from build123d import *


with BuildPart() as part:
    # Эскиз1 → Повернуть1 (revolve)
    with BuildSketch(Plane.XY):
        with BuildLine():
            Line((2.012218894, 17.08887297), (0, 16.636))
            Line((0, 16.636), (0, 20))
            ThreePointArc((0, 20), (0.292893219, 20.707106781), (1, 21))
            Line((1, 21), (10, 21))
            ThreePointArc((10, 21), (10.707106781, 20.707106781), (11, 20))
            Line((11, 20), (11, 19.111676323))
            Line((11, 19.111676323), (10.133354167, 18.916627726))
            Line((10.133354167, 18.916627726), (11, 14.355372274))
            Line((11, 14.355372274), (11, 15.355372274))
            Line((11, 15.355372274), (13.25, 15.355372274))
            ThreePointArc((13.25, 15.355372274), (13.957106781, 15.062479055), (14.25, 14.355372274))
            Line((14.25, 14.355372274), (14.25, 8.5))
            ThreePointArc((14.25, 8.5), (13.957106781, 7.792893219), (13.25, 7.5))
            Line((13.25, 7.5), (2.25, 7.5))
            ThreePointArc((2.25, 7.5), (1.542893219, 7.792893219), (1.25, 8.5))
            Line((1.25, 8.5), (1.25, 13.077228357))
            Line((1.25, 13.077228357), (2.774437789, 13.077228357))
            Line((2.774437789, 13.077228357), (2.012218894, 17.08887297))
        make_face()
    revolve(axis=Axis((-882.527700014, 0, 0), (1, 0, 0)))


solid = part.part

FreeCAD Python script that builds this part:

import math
import FreeCAD as App
import Part
import Sketcher
from FreeCAD import Vector

doc = App.newDocument("Part")
body = doc.addObject("PartDesign::Body", "Body")

# Sketch on XY plane
sketch1 = doc.addObject("Sketcher::SketchObject", "Sketch")
body.addObject(sketch1)
sketch1.AttachmentSupport = (doc.XY_Plane, [""])
sketch1.MapMode = "FlatFace"
sketch1.addGeometry([
    Part.LineSegment(Vector(0, 16.6, 0), Vector(2, 17.1, 0)),  # 0
    Part.LineSegment(Vector(2, 17.1, 0), Vector(2.8, 13.1, 0)),  # 1
    Part.LineSegment(Vector(2.8, 13.1, 0), Vector(1.2, 13.1, 0)),  # 2
    Part.LineSegment(Vector(1.2, 13.1, 0), Vector(1.2, 8.5, 0)),  # 3
    Part.ArcOfCircle(Part.Circle(Vector(2.3, 8.5, 0), Vector(0, 0, 1), 1), math.radians(-180), math.radians(-90)),  # 4
    Part.LineSegment(Vector(2.2, 7.5, 0), Vector(13.2, 7.5, 0)),  # 5
    Part.ArcOfCircle(Part.Circle(Vector(13.2, 8.5, 0), Vector(0, 0, 1), 1), math.radians(-90), math.radians(0)),  # 6
    Part.LineSegment(Vector(14.2, 8.5, 0), Vector(14.2, 14.4, 0)),  # 7
    Part.ArcOfCircle(Part.Circle(Vector(13.2, 14.4, 0), Vector(0, 0, 1), 1), math.radians(0), math.radians(90)),  # 8
    Part.LineSegment(Vector(13.2, 15.4, 0), Vector(11, 15.4, 0)),  # 9
    Part.LineSegment(Vector(11, 15.4, 0), Vector(11, 14.4, 0)),  # 10
    Part.LineSegment(Vector(11, 14.4, 0), Vector(10.1, 18.9, 0)),  # 11
    Part.LineSegment(Vector(10.1, 18.9, 0), Vector(11, 19.1, 0)),  # 12
    Part.LineSegment(Vector(11, 19.1, 0), Vector(11, 20, 0)),  # 13
    Part.ArcOfCircle(Part.Circle(Vector(10, 20, 0), Vector(0, 0, 1), 1), math.radians(0), math.radians(90)),  # 14
    Part.LineSegment(Vector(10, 21, 0), Vector(1, 21, 0)),  # 15
    Part.ArcOfCircle(Part.Circle(Vector(1, 20, 0), Vector(0, 0, 1), 1), math.radians(90), math.radians(180)),  # 16
    Part.LineSegment(Vector(0, 20, 0), Vector(0, 16.6, 0)),  # 17
], False)
sketch1.addConstraint([
    Sketcher.Constraint("Coincident", 0, 2, 1, 1),
    Sketcher.Constraint("Coincident", 1, 2, 2, 1),
    Sketcher.Constraint("Coincident", 2, 2, 3, 1),
    Sketcher.Constraint("Tangent", 3, 2, 4, 1),
    Sketcher.Constraint("Tangent", 4, 2, 5, 1),
    Sketcher.Constraint("Tangent", 5, 2, 6, 1),
    Sketcher.Constraint("Tangent", 6, 2, 7, 1),
    Sketcher.Constraint("Tangent", 7, 2, 8, 1),
    Sketcher.Constraint("Tangent", 8, 2, 9, 1),
    Sketcher.Constraint("Coincident", 9, 2, 10, 1),
    Sketcher.Constraint("Coincident", 10, 2, 11, 1),
    Sketcher.Constraint("Coincident", 11, 2, 12, 1),
    Sketcher.Constraint("Coincident", 12, 2, 13, 1),
    Sketcher.Constraint("Tangent", 13, 2, 14, 1),
    Sketcher.Constraint("Tangent", 14, 2, 15, 1),
    Sketcher.Constraint("Tangent", 15, 2, 16, 1),
    Sketcher.Constraint("Tangent", 16, 2, 17, 1),
    Sketcher.Constraint("Coincident", 17, 2, 0, 1),
    Sketcher.Constraint("Horizontal", 2),
    Sketcher.Constraint("Vertical", 3),
    Sketcher.Constraint("Horizontal", 5),
    Sketcher.Constraint("Vertical", 7),
    Sketcher.Constraint("Horizontal", 9),
    Sketcher.Constraint("Vertical", 10),
    Sketcher.Constraint("Vertical", 13),
    Sketcher.Constraint("Horizontal", 15),
    Sketcher.Constraint("Vertical", 17),
    Sketcher.Constraint("Equal", 4, 6),
    Sketcher.Constraint("Equal", 6, 8),
    Sketcher.Constraint("Equal", 8, 14),
    Sketcher.Constraint("Equal", 14, 16),
    Sketcher.Constraint("PointOnObject", 16, 2, -2),
    Sketcher.Constraint("Parallel", 1, 11),
    Sketcher.Constraint("Parallel", 0, 12),
    Sketcher.Constraint("Horizontal", 7, 2, 10, 2),
    Sketcher.Constraint("Vertical", 10, 2, 12, 2),
    Sketcher.Constraint("Radius", 4, 1.0),
    Sketcher.Constraint("DistanceX", 5, 1, 5, 2, 11.0),
    Sketcher.Constraint("DistanceX", 15, 2, 15, 1, 9.0),
    Sketcher.Constraint("DistanceY", -1, 1, 14, 3, 20.0),
    Sketcher.Constraint("DistanceX", 9, 2, 9, 1, 2.25),
    Sketcher.Constraint("DistanceY", -1, 1, 4, 3, 8.5),
    Sketcher.Constraint("DistanceY", 17, 2, 17, 1, 3.364),
    Sketcher.Constraint("DistanceY", 3, 2, 3, 1, 4.577228),
    Sketcher.Constraint("DistanceY", 8, 3, 0, 2, 2.733501),
    Sketcher.Constraint("Distance", 0, 2.062552),
    Sketcher.Constraint("DistanceX", 2, 2, 2, 1, 1.524438),
    Sketcher.Constraint("DistanceY", 7, 1, 7, 2, 5.855372),
    Sketcher.Constraint("DistanceY", 13, 1, 13, 2, 0.888324),
])
revolution = doc.addObject("PartDesign::Revolution", "Revolution")
body.addObject(revolution)
revolution.Profile = sketch1
revolution.ReferenceAxis = (sketch1, ["H_Axis"])
revolution.Angle = 360

doc.recompute()
